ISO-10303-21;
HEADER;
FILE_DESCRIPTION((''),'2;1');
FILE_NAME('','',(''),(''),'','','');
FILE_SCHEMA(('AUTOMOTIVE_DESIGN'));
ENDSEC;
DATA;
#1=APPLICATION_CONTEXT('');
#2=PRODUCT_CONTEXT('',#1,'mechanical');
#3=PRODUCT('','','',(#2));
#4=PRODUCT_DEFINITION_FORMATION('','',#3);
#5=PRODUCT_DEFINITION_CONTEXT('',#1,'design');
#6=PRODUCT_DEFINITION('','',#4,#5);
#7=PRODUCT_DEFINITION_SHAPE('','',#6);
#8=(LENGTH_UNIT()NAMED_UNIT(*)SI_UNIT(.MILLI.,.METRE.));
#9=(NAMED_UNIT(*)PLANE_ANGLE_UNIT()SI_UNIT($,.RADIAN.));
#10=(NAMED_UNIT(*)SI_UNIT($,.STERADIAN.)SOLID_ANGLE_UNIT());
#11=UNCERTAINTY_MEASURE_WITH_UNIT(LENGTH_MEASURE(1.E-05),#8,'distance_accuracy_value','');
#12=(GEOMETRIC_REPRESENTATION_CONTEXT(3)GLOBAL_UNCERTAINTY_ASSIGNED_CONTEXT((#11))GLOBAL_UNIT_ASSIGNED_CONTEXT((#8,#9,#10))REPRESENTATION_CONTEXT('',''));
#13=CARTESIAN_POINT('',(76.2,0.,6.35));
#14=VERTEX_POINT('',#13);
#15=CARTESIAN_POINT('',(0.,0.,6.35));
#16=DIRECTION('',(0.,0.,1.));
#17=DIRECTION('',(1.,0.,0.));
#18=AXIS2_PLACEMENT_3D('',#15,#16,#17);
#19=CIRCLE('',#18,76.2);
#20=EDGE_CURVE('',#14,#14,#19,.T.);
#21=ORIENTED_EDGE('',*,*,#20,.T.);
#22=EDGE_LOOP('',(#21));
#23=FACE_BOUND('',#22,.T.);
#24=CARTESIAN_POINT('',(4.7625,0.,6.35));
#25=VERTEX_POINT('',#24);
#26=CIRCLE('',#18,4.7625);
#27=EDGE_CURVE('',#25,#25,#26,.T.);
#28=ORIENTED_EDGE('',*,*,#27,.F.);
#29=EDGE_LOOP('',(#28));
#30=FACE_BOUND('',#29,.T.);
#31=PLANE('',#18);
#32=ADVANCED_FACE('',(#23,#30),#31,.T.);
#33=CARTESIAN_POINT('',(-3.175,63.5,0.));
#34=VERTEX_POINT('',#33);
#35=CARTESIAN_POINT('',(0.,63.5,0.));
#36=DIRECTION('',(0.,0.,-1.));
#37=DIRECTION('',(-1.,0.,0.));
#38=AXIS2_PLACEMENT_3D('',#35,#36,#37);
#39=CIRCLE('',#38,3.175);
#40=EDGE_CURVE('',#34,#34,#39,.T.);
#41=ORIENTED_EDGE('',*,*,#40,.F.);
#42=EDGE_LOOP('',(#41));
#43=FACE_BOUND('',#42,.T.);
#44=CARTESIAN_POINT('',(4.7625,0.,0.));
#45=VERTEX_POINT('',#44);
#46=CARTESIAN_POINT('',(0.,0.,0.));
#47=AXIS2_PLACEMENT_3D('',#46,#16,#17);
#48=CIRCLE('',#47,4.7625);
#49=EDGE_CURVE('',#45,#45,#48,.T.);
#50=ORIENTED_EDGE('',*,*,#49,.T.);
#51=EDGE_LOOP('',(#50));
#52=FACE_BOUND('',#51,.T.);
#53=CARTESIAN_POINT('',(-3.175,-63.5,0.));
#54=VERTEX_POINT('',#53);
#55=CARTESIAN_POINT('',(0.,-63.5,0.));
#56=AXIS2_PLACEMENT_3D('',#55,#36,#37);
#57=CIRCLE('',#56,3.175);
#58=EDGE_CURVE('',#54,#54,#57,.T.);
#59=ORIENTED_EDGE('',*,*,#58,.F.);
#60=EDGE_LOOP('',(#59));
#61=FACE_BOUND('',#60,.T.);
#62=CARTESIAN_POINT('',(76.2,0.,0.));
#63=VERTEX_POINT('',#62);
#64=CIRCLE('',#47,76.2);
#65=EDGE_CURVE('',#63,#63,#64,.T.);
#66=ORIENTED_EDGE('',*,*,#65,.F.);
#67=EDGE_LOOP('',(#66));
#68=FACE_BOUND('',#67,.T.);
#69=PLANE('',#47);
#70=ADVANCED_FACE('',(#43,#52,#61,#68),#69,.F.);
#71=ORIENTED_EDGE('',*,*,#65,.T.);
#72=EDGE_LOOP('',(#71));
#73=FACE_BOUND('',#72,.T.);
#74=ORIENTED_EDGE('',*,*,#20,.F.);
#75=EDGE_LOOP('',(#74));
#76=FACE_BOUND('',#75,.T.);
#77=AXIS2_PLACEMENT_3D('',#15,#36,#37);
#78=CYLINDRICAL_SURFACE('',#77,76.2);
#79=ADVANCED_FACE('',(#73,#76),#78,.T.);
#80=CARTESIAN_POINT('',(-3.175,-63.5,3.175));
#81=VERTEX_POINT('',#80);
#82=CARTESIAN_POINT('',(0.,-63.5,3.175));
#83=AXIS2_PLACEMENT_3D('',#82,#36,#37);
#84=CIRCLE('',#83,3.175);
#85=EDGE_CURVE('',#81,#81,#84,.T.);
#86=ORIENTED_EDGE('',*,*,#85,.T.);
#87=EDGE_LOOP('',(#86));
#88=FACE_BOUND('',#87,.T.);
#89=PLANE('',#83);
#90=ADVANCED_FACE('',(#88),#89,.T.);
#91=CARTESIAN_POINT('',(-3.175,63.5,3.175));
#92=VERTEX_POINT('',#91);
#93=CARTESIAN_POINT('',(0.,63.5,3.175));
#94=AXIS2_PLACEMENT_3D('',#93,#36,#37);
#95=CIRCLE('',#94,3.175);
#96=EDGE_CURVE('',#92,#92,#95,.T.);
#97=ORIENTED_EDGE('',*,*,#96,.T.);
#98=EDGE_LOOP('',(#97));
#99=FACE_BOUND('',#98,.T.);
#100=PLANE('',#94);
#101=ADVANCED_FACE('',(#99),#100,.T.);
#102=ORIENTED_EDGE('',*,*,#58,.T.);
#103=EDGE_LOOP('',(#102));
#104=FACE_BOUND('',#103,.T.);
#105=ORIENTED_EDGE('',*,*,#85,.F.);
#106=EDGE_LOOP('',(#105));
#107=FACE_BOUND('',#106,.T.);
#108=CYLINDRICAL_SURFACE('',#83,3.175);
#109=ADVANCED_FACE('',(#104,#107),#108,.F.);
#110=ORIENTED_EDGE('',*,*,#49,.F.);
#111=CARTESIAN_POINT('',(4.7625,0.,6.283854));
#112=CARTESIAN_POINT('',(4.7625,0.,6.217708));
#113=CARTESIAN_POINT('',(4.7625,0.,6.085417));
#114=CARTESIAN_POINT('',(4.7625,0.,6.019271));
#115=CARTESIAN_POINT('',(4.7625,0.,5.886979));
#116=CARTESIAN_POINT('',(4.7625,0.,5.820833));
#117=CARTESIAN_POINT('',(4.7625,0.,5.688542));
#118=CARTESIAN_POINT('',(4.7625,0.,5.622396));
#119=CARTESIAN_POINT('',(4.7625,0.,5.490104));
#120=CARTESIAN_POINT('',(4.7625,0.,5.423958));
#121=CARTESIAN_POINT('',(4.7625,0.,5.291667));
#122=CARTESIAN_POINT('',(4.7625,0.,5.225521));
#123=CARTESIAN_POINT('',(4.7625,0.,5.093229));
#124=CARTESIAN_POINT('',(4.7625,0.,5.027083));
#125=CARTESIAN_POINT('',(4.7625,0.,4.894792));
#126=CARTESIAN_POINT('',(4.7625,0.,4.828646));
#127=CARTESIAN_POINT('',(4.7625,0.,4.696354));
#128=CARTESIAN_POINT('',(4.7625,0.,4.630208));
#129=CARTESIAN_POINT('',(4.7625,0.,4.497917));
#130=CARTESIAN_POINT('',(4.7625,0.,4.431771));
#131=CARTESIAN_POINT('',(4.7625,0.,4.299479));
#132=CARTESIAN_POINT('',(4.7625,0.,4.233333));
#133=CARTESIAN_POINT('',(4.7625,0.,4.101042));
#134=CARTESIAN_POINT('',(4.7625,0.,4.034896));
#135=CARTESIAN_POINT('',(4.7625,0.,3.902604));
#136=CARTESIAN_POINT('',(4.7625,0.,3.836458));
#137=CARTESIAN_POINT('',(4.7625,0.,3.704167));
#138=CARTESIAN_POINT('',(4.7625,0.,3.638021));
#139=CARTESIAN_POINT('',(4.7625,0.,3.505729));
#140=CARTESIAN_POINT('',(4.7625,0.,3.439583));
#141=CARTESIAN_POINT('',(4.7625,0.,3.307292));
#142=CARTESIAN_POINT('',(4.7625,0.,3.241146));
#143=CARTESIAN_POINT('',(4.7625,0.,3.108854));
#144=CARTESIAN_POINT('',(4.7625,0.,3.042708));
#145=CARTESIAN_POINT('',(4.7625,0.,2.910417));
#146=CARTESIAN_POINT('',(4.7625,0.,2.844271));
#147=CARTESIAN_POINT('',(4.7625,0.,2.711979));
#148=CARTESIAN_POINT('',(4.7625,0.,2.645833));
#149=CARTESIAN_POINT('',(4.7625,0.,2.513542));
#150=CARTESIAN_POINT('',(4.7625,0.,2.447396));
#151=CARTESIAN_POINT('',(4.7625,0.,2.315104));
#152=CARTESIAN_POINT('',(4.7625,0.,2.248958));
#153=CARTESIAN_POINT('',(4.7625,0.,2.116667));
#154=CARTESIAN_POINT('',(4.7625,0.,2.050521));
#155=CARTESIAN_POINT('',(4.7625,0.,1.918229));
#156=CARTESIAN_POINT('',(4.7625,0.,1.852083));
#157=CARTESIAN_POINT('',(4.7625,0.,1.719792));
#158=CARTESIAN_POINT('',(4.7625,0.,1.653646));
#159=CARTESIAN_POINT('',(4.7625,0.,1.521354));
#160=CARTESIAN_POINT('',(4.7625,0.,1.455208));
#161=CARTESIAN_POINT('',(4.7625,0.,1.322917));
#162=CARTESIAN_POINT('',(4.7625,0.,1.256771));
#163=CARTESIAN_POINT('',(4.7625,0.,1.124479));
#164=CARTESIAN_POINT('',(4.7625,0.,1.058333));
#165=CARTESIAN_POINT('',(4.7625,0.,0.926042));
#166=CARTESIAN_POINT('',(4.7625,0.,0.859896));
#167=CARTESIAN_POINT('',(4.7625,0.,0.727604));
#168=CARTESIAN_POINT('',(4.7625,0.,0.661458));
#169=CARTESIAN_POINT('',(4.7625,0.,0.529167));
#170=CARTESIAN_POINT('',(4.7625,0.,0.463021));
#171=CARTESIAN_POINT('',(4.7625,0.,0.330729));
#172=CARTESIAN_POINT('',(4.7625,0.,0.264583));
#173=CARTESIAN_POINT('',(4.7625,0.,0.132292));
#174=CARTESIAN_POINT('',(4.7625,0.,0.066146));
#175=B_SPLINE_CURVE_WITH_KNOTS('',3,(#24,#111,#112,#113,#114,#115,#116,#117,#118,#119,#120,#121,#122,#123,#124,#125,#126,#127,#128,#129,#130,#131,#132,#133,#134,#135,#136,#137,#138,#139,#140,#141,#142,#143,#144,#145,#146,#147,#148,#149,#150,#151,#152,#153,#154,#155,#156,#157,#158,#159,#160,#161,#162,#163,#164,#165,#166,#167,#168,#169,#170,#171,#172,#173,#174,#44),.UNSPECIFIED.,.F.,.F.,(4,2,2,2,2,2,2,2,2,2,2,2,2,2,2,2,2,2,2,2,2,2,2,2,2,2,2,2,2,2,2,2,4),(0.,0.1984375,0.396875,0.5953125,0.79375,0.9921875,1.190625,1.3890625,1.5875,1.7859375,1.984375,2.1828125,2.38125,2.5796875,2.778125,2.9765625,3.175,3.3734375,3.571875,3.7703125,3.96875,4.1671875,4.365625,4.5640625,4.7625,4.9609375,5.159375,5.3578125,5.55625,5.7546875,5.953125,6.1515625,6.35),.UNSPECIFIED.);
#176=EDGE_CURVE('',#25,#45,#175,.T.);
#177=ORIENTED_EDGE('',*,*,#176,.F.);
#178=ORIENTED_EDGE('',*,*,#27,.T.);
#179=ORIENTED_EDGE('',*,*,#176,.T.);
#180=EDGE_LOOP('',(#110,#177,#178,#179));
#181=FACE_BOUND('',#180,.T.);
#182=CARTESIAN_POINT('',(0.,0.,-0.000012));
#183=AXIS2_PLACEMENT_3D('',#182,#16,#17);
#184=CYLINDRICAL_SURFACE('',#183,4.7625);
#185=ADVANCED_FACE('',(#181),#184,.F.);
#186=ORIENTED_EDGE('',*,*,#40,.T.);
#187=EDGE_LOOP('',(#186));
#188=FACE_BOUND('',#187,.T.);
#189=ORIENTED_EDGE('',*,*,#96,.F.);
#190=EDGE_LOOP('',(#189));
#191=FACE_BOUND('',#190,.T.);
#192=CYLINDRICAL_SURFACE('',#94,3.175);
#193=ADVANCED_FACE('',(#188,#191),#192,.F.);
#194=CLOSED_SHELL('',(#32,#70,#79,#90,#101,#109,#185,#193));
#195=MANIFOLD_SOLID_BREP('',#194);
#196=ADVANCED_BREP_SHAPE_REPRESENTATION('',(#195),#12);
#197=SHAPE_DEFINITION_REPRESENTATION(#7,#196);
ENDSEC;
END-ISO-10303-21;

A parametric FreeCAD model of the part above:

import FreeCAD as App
import Part
import Sketcher

V = App.Vector
Q = App.Units.Quantity

doc = App.newDocument("Part")
body = doc.addObject("PartDesign::Body", "Body")

# Sketch on XY plane
sketch1 = body.newObject("Sketcher::SketchObject", "Sketch")
sketch1.AttachmentSupport = (doc.getObject("XY_Plane"), [""])
sketch1.MapMode = "FlatFace"
sketch1.addGeometry(Part.Circle(V(0, 0, 0), V(0, 0, 1), 76.2), False)
sketch1.addConstraint(Sketcher.Constraint("Coincident", 0, 3, -1, 1))
sketch1.addConstraint(Sketcher.Constraint("Diameter", 0, Q("6 in")))
pad1 = body.newObject("PartDesign::Pad", "Pad")
pad1.Profile = sketch1
pad1.Length = Q("0.25 in")

# Sketch on XY plane
sketch2 = body.newObject("Sketcher::SketchObject", "Sketch001")
sketch2.AttachmentSupport = (doc.getObject("XY_Plane"), [""])
sketch2.MapMode = "FlatFace"
sketch2.addGeometry(Part.Circle(V(0, 0, 0), V(0, 0, 1), 4.7625), False)
sketch2.addConstraint(Sketcher.Constraint("Coincident", 0, 3, -1, 1))
sketch2.addConstraint(Sketcher.Constraint("Diameter", 0, Q("0.375 in")))
pocket1 = body.newObject("PartDesign::Pocket", "Pocket")
pocket1.Profile = sketch2
pocket1.Type = "ThroughAll"
pocket1.Midplane = True

# Sketch on XY plane
sketch3 = body.newObject("Sketcher::SketchObject", "Sketch002")
sketch3.AttachmentSupport = (doc.getObject("XY_Plane"), [""])
sketch3.MapMode = "FlatFace"
sketch3.addGeometry(Part.Circle(V(0, 63.5, 0), V(0, 0, 1), 3.175), False)
sketch3.addGeometry(Part.Circle(V(0, -63.5, 0), V(0, 0, 1), 3.175), False)
sketch3.addConstraint(Sketcher.Constraint("Equal", 0, 1))
sketch3.addConstraint(Sketcher.Constraint("Symmetric", 0, 3, 1, 3, -1, 1))
sketch3.addConstraint(Sketcher.Constraint("PointOnObject", 0, 3, -2))
sketch3.addConstraint(Sketcher.Constraint("Diameter", 0, Q("0.25 in")))
sketch3.addConstraint(Sketcher.Constraint("DistanceY", 1, 3, 0, 3, Q("5 in")))
pocket2 = body.newObject("PartDesign::Pocket", "Pocket001")
pocket2.Profile = sketch3
pocket2.Length = Q("0.125 in")
pocket2.Reversed = True

doc.recompute()
